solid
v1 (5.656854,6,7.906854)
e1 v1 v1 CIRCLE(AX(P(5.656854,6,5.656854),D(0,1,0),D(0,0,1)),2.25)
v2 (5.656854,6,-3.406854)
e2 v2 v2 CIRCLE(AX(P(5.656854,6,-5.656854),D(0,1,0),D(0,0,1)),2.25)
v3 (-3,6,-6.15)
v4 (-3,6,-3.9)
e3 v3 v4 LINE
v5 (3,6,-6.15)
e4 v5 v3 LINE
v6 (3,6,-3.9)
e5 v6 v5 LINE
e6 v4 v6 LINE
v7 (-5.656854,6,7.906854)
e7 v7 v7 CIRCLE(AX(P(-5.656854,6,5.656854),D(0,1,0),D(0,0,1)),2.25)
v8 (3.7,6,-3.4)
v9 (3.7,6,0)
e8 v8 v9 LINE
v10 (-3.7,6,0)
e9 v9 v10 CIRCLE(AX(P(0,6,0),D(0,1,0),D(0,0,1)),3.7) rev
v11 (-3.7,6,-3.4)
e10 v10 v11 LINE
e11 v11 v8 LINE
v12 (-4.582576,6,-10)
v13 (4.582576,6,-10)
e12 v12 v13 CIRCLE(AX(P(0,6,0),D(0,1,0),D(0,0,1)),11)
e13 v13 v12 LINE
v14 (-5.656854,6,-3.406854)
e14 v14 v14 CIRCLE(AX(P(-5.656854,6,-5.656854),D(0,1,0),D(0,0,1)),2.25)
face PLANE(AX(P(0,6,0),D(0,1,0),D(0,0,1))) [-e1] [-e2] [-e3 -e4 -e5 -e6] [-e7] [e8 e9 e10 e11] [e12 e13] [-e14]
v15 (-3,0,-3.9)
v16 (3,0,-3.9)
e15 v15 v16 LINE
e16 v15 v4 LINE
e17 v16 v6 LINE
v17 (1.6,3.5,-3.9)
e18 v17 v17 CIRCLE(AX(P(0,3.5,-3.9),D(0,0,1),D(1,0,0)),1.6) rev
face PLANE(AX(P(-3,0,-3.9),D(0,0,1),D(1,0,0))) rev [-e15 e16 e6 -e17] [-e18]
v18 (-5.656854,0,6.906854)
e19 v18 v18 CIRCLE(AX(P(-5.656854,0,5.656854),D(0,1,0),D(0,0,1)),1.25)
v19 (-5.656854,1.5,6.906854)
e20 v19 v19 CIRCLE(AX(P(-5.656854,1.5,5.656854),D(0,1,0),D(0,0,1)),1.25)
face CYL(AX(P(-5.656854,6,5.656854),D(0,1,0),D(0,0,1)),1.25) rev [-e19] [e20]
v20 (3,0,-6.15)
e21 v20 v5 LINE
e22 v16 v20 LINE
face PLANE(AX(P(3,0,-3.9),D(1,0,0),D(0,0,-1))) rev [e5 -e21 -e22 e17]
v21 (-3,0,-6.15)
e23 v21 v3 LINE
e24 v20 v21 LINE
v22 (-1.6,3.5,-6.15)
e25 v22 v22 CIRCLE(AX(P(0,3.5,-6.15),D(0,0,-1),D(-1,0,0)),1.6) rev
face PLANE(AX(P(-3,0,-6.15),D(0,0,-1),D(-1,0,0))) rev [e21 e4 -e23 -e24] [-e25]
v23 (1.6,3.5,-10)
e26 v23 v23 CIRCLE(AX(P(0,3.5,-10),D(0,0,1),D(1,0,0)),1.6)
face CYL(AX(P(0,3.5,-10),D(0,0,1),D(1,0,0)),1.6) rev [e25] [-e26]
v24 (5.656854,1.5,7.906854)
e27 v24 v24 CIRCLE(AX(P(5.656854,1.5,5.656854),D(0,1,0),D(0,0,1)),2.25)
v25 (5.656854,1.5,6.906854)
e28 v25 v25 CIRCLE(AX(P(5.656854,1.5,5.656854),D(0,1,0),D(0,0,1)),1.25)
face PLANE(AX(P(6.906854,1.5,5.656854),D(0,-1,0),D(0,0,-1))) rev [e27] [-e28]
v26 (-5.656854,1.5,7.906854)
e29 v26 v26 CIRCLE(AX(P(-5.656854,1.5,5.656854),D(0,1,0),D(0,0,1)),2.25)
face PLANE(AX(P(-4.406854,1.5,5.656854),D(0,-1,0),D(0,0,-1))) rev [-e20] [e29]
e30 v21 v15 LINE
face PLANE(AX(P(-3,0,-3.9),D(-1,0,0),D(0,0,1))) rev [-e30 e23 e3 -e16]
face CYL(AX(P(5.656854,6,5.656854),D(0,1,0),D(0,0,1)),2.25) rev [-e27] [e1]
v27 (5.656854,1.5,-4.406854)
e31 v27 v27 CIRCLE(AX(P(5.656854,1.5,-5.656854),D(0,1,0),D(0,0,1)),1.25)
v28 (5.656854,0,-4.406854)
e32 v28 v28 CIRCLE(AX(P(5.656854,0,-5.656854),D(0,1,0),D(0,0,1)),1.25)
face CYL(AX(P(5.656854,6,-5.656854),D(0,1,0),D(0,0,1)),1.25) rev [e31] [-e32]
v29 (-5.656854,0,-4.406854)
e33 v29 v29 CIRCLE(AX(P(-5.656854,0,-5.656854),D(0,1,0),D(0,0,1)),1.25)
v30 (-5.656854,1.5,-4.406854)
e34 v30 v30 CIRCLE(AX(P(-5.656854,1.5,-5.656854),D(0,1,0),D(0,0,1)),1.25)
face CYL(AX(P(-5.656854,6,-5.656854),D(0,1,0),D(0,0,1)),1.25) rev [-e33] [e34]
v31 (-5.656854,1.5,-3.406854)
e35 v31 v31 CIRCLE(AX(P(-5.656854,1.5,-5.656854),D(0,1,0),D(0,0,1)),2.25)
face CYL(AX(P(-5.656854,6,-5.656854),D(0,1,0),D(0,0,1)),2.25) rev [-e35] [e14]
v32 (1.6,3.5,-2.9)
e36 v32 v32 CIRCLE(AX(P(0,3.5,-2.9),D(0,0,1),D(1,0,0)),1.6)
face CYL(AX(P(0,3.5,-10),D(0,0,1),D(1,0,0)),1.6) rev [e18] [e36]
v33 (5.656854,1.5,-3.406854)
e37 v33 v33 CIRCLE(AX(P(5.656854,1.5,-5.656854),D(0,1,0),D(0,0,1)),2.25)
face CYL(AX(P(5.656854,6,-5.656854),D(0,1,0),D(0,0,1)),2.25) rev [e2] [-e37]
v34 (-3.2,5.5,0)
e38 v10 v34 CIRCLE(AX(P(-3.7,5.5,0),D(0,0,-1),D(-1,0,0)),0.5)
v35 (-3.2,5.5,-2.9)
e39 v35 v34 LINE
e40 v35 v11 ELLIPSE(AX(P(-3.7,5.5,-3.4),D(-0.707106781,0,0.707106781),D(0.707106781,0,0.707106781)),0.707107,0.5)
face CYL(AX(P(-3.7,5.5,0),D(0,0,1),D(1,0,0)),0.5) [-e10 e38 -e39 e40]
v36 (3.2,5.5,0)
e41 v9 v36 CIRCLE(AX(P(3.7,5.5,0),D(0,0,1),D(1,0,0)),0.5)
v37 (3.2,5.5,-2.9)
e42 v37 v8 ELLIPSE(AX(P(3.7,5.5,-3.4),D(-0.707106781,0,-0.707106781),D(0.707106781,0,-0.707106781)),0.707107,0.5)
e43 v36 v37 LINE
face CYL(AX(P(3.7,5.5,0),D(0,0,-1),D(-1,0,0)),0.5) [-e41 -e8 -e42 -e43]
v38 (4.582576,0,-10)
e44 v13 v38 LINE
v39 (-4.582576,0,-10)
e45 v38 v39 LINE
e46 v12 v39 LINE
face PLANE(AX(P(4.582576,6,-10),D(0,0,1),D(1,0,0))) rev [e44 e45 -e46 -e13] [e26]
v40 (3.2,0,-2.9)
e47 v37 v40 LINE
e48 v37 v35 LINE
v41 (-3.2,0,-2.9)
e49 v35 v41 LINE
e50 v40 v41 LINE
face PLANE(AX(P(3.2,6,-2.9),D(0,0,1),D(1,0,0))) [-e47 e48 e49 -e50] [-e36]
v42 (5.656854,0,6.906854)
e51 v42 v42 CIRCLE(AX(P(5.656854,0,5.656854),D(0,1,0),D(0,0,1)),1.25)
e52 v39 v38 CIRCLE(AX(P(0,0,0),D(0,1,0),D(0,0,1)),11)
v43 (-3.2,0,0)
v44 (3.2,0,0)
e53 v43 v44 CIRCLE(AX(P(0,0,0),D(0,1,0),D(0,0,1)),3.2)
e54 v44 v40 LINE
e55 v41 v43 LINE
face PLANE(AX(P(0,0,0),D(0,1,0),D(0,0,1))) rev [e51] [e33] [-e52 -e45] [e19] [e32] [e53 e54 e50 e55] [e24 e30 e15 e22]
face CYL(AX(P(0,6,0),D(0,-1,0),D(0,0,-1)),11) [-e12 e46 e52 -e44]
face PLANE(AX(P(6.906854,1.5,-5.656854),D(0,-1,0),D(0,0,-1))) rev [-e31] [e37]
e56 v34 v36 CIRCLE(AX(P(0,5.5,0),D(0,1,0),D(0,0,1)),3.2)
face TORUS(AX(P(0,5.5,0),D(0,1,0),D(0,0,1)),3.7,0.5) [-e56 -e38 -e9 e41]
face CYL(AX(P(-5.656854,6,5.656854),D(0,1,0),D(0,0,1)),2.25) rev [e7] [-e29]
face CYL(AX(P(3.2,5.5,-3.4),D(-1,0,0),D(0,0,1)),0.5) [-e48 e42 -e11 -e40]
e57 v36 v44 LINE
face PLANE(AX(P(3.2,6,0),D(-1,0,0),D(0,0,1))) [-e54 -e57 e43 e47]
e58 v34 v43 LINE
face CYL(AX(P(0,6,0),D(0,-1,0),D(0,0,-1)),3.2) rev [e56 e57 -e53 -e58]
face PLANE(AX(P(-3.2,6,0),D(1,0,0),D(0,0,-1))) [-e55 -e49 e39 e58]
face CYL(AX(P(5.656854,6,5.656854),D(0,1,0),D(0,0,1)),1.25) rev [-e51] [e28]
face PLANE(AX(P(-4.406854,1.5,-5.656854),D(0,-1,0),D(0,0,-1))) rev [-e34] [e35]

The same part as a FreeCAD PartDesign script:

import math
import FreeCAD as App
import Part
import Sketcher
Q = App.Units.Quantity


def edges_at(feature, points):
    """Names of the edges that pass closest to the given points."""
    edges = feature.Shape.Edges
    near = lambda p: min(range(len(edges)), key=lambda i: edges[i].distToShape(Part.Vertex(*p))[0])
    return sorted({f"Edge{near(p) + 1}" for p in points})


def add_polygon(sketch, points):
    """Adds a closed chain of lines whose ends are joined by coincident constraints."""
    first, n = sketch.GeometryCount, len(points)
    for a, b in zip(points, points[1:] + points[:1]):
        sketch.addGeometry(Part.LineSegment(App.Vector(*a, 0), App.Vector(*b, 0)), False)
    for i in range(n):
        sketch.addConstraint(Sketcher.Constraint("Coincident", first + i, 2, first + (i + 1) % n, 1))

doc = App.newDocument("Part")
body = doc.addObject("PartDesign::Body", "Body")

# Sketch on XZ plane
sketch1 = body.newObject("Sketcher::SketchObject", "Sketch")
sketch1.AttachmentSupport = (doc.getObject("XZ_Plane"), [""])
sketch1.MapMode = "FlatFace"
sketch1.addGeometry(Part.LineSegment(App.Vector(4.582576, -10, 0), App.Vector(-4.582576, -10, 0)), False)
sketch1.addGeometry(Part.ArcOfCircle(Part.Circle(App.Vector(0, 0, 0), App.Vector(0, 0, 1), 11), math.radians(-65.380023), math.radians(245.380023)), False)
sketch1.addGeometry(Part.ArcOfCircle(Part.Circle(App.Vector(0, 0, 0), App.Vector(0, 0, 1), 3.2), math.radians(0), math.radians(180)), False)
sketch1.addGeometry(Part.LineSegment(App.Vector(-3.2, 0, 0), App.Vector(-3.2, -2.9, 0)), False)
sketch1.addGeometry(Part.LineSegment(App.Vector(-3.2, -2.9, 0), App.Vector(3.2, -2.9, 0)), False)
sketch1.addGeometry(Part.LineSegment(App.Vector(3.2, -2.9, 0), App.Vector(3.2, 0, 0)), False)
sketch1.addConstraint(Sketcher.Constraint("Coincident", 0, 1, 1, 1))
sketch1.addConstraint(Sketcher.Constraint("Coincident", 1, 2, 0, 2))
sketch1.addConstraint(Sketcher.Constraint("Tangent", 2, 2, 3, 1))
sketch1.addConstraint(Sketcher.Constraint("Coincident", 3, 2, 4, 1))
sketch1.addConstraint(Sketcher.Constraint("Coincident", 4, 2, 5, 1))
sketch1.addConstraint(Sketcher.Constraint("Tangent", 5, 2, 2, 1))
sketch1.addConstraint(Sketcher.Constraint("Horizontal", 0))
sketch1.addConstraint(Sketcher.Constraint("Vertical", 3))
sketch1.addConstraint(Sketcher.Constraint("Horizontal", 4))
sketch1.addConstraint(Sketcher.Constraint("Vertical", 5))
sketch1.addConstraint(Sketcher.Constraint("Coincident", 1, 3, -1, 1))
sketch1.addConstraint(Sketcher.Constraint("Coincident", 2, 3, -1, 1))
sketch1.addConstraint(Sketcher.Constraint("Radius", 1, Q("11 mm")))
sketch1.addConstraint(Sketcher.Constraint("Radius", 2, Q("3.2 mm")))
sketch1.addConstraint(Sketcher.Constraint("DistanceY", 3, 2, 3, 1, Q("2.9 mm")))
sketch1.addConstraint(Sketcher.Constraint("DistanceY", 0, 1, -1, 1, Q("10 mm")))
pad1 = body.newObject("PartDesign::Pad", "Pad")
pad1.Profile = sketch1
pad1.Length = 6
pad1.Reversed = True

# Sketch on XZ plane
sketch2 = body.newObject("Sketcher::SketchObject", "Sketch001")
sketch2.AttachmentSupport = (doc.getObject("XZ_Plane"), [""])
sketch2.MapMode = "FlatFace"
sketch2.AttachmentOffset = App.Placement(App.Vector(0, 0, -6), App.Rotation())
sketch2.addGeometry(Part.Circle(App.Vector(5.656854, -5.656854, 0), App.Vector(0, 0, 1), 1.25), False)
sketch2.addGeometry(Part.Circle(App.Vector(5.656854, 5.656854, 0), App.Vector(0, 0, 1), 1.25), False)
sketch2.addGeometry(Part.Circle(App.Vector(-5.656854, 5.656854, 0), App.Vector(0, 0, 1), 1.25), False)
sketch2.addGeometry(Part.Circle(App.Vector(-5.656854, -5.656854, 0), App.Vector(0, 0, 1), 1.25), False)
sketch2.addGeometry(Part.Circle(App.Vector(0, 0, 0), App.Vector(0, 0, 1), 1.25), False)
sketch2.addConstraint(Sketcher.Constraint("Coincident", 4, 3, -1, 1))
sketch2.addConstraint(Sketcher.Constraint("Equal", 0, 1))
sketch2.addConstraint(Sketcher.Constraint("Equal", 1, 2))
sketch2.addConstraint(Sketcher.Constraint("Equal", 2, 3))
sketch2.addConstraint(Sketcher.Constraint("Equal", 3, 4))
sketch2.addConstraint(Sketcher.Constraint("Symmetric", 0, 3, 2, 3, -1, 1))
sketch2.addConstraint(Sketcher.Constraint("Symmetric", 1, 3, 3, 3, -1, 1))
sketch2.addConstraint(Sketcher.Constraint("Symmetric", 1, 3, 2, 3, -2))
sketch2.addConstraint(Sketcher.Constraint("Diameter", 0, Q("2.5 mm")))
sketch2.addConstraint(Sketcher.Constraint("DistanceY", 0, 3, 1, 3, Q("11.313708 mm")))
sketch2.addConstraint(Sketcher.Constraint("DistanceX", 2, 3, 1, 3, Q("11.313708 mm")))
doc.recompute()
hole = body.newObject("PartDesign::Hole", "Hole")
hole.Profile = sketch2
hole.ThreadType = "None"
hole.Diameter = 2.5
hole.DepthType = "ThroughAll"
hole.HoleCutType = "Counterbore"
hole.HoleCutDiameter = 4.5
hole.HoleCutDepth = 4.5
hole.Reversed = True
doc.recompute()

fillet = body.newObject("PartDesign::Fillet", "Fillet")
fillet.Base = (hole, edges_at(hole, [
    (0, 6, 3.2),
    (3.2, 6, -1.45),
    (0, 6, -2.9),
    (-3.2, 6, -1.45),
]))
fillet.Radius = 0.5

# Sketch on XY plane
sketch3 = body.newObject("Sketcher::SketchObject", "Sketch002")
sketch3.AttachmentSupport = (doc.getObject("XY_Plane"), [""])
sketch3.MapMode = "FlatFace"
sketch3.addGeometry(Part.Circle(App.Vector(0, 3.5, 0), App.Vector(0, 0, 1), 1.6), False)
sketch3.addConstraint(Sketcher.Constraint("PointOnObject", 0, 3, -2))
sketch3.addConstraint(Sketcher.Constraint("Diameter", 0, Q("3.2 mm")))
sketch3.addConstraint(Sketcher.Constraint("DistanceY", -1, 1, 0, 3, Q("3.5 mm")))
pocket1 = body.newObject("PartDesign::Pocket", "Pocket")
pocket1.Profile = sketch3
pocket1.Type = "ThroughAll"

# Sketch on XZ plane
sketch4 = body.newObject("Sketcher::SketchObject", "Sketch003")
sketch4.AttachmentSupport = (doc.getObject("XZ_Plane"), [""])
sketch4.MapMode = "FlatFace"
sketch4.AttachmentOffset = App.Placement(App.Vector(0, 0, -6), App.Rotation())
add_polygon(sketch4, [(-3, -6.15), (-3, -3.9), (3, -3.9), (3, -6.15)])  # lines 0-3
sketch4.addConstraint(Sketcher.Constraint("Vertical", 0))
sketch4.addConstraint(Sketcher.Constraint("Horizontal", 1))
sketch4.addConstraint(Sketcher.Constraint("Vertical", 2))
sketch4.addConstraint(Sketcher.Constraint("Horizontal", 3))
sketch4.addConstraint(Sketcher.Constraint("DistanceX", 1, 1, 1, 2, Q("6 mm")))
sketch4.addConstraint(Sketcher.Constraint("DistanceX", 0, 2, -1, 1, Q("3 mm")))
sketch4.addConstraint(Sketcher.Constraint("DistanceY", 0, 1, 0, 2, Q("2.25 mm")))
sketch4.addConstraint(Sketcher.Constraint("DistanceY", 0, 2, -1, 1, Q("3.9 mm")))
pocket2 = body.newObject("PartDesign::Pocket", "Pocket001")
pocket2.Profile = sketch4
pocket2.Type = "ThroughAll"
pocket2.Reversed = True

doc.recompute()
